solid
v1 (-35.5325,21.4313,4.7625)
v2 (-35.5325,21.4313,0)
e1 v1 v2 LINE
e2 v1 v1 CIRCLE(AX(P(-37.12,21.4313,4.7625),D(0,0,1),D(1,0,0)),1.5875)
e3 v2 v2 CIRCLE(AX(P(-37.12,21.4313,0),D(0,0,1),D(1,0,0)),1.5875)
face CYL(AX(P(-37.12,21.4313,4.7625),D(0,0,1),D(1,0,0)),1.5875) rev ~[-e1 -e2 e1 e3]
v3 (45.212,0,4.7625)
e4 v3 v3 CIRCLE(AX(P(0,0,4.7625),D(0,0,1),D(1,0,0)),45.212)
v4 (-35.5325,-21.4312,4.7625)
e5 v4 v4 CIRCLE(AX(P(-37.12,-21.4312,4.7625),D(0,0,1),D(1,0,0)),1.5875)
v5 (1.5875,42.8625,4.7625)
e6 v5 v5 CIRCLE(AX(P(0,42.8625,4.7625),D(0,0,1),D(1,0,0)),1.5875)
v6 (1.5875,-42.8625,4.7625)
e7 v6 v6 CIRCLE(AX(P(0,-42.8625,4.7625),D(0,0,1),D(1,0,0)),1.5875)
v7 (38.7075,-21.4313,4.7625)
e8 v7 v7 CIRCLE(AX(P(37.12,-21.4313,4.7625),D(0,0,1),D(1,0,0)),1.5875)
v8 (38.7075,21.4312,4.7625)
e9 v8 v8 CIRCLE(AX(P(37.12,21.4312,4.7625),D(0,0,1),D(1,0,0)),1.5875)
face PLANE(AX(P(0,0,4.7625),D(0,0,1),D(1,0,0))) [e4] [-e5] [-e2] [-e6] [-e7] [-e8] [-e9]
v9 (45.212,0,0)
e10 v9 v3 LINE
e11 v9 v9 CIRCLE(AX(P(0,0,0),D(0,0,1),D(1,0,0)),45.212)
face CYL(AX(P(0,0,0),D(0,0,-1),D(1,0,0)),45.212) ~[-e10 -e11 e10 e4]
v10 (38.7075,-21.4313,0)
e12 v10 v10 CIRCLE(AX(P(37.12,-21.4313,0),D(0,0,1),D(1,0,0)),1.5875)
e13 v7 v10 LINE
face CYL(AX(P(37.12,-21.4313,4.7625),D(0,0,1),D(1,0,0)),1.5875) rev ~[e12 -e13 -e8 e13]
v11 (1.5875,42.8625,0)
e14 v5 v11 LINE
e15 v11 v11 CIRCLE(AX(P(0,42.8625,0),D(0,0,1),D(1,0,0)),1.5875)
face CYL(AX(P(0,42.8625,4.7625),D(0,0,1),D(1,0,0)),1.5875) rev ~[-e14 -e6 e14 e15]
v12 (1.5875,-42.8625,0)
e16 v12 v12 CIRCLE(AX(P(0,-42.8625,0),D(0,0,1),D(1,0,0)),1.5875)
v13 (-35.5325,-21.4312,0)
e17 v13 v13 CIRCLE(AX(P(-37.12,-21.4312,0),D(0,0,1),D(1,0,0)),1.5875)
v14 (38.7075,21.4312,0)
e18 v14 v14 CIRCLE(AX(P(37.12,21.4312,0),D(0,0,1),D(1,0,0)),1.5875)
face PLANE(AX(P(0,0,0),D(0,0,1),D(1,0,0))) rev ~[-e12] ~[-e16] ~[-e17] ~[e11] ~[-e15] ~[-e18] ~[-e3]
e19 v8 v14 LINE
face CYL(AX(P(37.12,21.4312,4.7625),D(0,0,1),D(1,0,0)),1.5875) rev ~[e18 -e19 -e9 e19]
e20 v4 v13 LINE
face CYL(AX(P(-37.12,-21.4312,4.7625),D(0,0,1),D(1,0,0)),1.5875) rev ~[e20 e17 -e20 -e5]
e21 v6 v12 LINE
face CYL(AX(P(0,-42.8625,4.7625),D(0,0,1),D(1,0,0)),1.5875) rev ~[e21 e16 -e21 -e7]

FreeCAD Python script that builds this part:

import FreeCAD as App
import Part
import Sketcher
from FreeCAD import Vector
Q = App.Units.Quantity

doc = App.newDocument("Part")
params = doc.addObject("Spreadsheet::Sheet", "Params")
for row, (alias, value) in enumerate([
    ("sketch1_diameter", "3.56 in"),
    ("pad1_length", "0.1875 in"),
    ("sketch2_diameter", "0.125 in"),
    ("pocket1_length", "1 in"),
], start=1):
    params.set(f"A{row}", alias)
    params.set(f"B{row}", "=" + value)
    params.setAlias(f"B{row}", alias)

body = doc.addObject("PartDesign::Body", "Body")

sketch1 = body.newObject("Sketcher::SketchObject", "Sketch")
sketch1.AttachmentSupport = (doc.getObject("XY_Plane"), [""])
sketch1.MapMode = "FlatFace"
sketch1.addGeometry(Part.Circle(Vector(0, 0, 0), Vector(0, 0, 1), 45.212), False)
sketch1.addConstraint(Sketcher.Constraint("Coincident", 0, 3, -1, 1))
sketch1.addConstraint(Sketcher.Constraint("Diameter", 0, Q("3.56 in")))
sketch1.setExpression("Constraints[1]", "Params.sketch1_diameter")
pad1 = body.newObject("PartDesign::Pad", "Pad")
pad1.Profile = sketch1
pad1.setExpression("Length", "Params.pad1_length")

sketch2 = body.newObject("Sketcher::SketchObject", "Sketch001")
sketch2.AttachmentSupport = (doc.getObject("XY_Plane"), [""])
sketch2.MapMode = "FlatFace"
sketch2.AttachmentOffset = App.Placement(Vector(0, 0, 0.1875 * 25.4), App.Rotation())
sketch2.addGeometry(Part.Circle(Vector(0, 42.8625, 0), Vector(0, 0, 1), 1.5875), False)
sketch2.addGeometry(Part.Circle(Vector(-37.12, 21.4313, 0), Vector(0, 0, 1), 1.5875), False)
sketch2.addGeometry(Part.Circle(Vector(-37.12, -21.4312, 0), Vector(0, 0, 1), 1.5875), False)
sketch2.addGeometry(Part.Circle(Vector(0, -42.8625, 0), Vector(0, 0, 1), 1.5875), False)
sketch2.addGeometry(Part.Circle(Vector(37.12, -21.4313, 0), Vector(0, 0, 1), 1.5875), False)
sketch2.addGeometry(Part.Circle(Vector(37.12, 21.4312, 0), Vector(0, 0, 1), 1.5875), False)
sketch2.addConstraint(Sketcher.Constraint("Equal", 0, 1))
sketch2.addConstraint(Sketcher.Constraint("Equal", 1, 2))
sketch2.addConstraint(Sketcher.Constraint("Equal", 2, 3))
sketch2.addConstraint(Sketcher.Constraint("Equal", 3, 4))
sketch2.addConstraint(Sketcher.Constraint("Equal", 4, 5))
sketch2.addConstraint(Sketcher.Constraint("Symmetric", 0, 3, 3, 3, -1, 1))
sketch2.addConstraint(Sketcher.Constraint("Symmetric", 1, 3, 4, 3, -1, 1))
sketch2.addConstraint(Sketcher.Constraint("Symmetric", 2, 3, 5, 3, -1, 1))
sketch2.addConstraint(Sketcher.Constraint("Symmetric", 2, 3, 4, 3, -2))
sketch2.addConstraint(Sketcher.Constraint("PointOnObject", 0, 3, -2))
sketch2.addConstraint(Sketcher.Constraint("Diameter", 0, Q("0.125 in")))
sketch2.addConstraint(Sketcher.Constraint("DistanceY", -1, 1, 0, 3, Q("1.6875 in")))
sketch2.addConstraint(Sketcher.Constraint("DistanceY", 2, 3, 1, 3, Q("1.6875 in")))
sketch2.addConstraint(Sketcher.Constraint("DistanceX", 1, 3, -1, 1, Q("37.12 mm")))
sketch2.setExpression("Constraints[10]", "Params.sketch2_diameter")
pocket1 = body.newObject("PartDesign::Pocket", "Pocket")
pocket1.Profile = sketch2
pocket1.setExpression("Length", "Params.pocket1_length")

doc.recompute()
